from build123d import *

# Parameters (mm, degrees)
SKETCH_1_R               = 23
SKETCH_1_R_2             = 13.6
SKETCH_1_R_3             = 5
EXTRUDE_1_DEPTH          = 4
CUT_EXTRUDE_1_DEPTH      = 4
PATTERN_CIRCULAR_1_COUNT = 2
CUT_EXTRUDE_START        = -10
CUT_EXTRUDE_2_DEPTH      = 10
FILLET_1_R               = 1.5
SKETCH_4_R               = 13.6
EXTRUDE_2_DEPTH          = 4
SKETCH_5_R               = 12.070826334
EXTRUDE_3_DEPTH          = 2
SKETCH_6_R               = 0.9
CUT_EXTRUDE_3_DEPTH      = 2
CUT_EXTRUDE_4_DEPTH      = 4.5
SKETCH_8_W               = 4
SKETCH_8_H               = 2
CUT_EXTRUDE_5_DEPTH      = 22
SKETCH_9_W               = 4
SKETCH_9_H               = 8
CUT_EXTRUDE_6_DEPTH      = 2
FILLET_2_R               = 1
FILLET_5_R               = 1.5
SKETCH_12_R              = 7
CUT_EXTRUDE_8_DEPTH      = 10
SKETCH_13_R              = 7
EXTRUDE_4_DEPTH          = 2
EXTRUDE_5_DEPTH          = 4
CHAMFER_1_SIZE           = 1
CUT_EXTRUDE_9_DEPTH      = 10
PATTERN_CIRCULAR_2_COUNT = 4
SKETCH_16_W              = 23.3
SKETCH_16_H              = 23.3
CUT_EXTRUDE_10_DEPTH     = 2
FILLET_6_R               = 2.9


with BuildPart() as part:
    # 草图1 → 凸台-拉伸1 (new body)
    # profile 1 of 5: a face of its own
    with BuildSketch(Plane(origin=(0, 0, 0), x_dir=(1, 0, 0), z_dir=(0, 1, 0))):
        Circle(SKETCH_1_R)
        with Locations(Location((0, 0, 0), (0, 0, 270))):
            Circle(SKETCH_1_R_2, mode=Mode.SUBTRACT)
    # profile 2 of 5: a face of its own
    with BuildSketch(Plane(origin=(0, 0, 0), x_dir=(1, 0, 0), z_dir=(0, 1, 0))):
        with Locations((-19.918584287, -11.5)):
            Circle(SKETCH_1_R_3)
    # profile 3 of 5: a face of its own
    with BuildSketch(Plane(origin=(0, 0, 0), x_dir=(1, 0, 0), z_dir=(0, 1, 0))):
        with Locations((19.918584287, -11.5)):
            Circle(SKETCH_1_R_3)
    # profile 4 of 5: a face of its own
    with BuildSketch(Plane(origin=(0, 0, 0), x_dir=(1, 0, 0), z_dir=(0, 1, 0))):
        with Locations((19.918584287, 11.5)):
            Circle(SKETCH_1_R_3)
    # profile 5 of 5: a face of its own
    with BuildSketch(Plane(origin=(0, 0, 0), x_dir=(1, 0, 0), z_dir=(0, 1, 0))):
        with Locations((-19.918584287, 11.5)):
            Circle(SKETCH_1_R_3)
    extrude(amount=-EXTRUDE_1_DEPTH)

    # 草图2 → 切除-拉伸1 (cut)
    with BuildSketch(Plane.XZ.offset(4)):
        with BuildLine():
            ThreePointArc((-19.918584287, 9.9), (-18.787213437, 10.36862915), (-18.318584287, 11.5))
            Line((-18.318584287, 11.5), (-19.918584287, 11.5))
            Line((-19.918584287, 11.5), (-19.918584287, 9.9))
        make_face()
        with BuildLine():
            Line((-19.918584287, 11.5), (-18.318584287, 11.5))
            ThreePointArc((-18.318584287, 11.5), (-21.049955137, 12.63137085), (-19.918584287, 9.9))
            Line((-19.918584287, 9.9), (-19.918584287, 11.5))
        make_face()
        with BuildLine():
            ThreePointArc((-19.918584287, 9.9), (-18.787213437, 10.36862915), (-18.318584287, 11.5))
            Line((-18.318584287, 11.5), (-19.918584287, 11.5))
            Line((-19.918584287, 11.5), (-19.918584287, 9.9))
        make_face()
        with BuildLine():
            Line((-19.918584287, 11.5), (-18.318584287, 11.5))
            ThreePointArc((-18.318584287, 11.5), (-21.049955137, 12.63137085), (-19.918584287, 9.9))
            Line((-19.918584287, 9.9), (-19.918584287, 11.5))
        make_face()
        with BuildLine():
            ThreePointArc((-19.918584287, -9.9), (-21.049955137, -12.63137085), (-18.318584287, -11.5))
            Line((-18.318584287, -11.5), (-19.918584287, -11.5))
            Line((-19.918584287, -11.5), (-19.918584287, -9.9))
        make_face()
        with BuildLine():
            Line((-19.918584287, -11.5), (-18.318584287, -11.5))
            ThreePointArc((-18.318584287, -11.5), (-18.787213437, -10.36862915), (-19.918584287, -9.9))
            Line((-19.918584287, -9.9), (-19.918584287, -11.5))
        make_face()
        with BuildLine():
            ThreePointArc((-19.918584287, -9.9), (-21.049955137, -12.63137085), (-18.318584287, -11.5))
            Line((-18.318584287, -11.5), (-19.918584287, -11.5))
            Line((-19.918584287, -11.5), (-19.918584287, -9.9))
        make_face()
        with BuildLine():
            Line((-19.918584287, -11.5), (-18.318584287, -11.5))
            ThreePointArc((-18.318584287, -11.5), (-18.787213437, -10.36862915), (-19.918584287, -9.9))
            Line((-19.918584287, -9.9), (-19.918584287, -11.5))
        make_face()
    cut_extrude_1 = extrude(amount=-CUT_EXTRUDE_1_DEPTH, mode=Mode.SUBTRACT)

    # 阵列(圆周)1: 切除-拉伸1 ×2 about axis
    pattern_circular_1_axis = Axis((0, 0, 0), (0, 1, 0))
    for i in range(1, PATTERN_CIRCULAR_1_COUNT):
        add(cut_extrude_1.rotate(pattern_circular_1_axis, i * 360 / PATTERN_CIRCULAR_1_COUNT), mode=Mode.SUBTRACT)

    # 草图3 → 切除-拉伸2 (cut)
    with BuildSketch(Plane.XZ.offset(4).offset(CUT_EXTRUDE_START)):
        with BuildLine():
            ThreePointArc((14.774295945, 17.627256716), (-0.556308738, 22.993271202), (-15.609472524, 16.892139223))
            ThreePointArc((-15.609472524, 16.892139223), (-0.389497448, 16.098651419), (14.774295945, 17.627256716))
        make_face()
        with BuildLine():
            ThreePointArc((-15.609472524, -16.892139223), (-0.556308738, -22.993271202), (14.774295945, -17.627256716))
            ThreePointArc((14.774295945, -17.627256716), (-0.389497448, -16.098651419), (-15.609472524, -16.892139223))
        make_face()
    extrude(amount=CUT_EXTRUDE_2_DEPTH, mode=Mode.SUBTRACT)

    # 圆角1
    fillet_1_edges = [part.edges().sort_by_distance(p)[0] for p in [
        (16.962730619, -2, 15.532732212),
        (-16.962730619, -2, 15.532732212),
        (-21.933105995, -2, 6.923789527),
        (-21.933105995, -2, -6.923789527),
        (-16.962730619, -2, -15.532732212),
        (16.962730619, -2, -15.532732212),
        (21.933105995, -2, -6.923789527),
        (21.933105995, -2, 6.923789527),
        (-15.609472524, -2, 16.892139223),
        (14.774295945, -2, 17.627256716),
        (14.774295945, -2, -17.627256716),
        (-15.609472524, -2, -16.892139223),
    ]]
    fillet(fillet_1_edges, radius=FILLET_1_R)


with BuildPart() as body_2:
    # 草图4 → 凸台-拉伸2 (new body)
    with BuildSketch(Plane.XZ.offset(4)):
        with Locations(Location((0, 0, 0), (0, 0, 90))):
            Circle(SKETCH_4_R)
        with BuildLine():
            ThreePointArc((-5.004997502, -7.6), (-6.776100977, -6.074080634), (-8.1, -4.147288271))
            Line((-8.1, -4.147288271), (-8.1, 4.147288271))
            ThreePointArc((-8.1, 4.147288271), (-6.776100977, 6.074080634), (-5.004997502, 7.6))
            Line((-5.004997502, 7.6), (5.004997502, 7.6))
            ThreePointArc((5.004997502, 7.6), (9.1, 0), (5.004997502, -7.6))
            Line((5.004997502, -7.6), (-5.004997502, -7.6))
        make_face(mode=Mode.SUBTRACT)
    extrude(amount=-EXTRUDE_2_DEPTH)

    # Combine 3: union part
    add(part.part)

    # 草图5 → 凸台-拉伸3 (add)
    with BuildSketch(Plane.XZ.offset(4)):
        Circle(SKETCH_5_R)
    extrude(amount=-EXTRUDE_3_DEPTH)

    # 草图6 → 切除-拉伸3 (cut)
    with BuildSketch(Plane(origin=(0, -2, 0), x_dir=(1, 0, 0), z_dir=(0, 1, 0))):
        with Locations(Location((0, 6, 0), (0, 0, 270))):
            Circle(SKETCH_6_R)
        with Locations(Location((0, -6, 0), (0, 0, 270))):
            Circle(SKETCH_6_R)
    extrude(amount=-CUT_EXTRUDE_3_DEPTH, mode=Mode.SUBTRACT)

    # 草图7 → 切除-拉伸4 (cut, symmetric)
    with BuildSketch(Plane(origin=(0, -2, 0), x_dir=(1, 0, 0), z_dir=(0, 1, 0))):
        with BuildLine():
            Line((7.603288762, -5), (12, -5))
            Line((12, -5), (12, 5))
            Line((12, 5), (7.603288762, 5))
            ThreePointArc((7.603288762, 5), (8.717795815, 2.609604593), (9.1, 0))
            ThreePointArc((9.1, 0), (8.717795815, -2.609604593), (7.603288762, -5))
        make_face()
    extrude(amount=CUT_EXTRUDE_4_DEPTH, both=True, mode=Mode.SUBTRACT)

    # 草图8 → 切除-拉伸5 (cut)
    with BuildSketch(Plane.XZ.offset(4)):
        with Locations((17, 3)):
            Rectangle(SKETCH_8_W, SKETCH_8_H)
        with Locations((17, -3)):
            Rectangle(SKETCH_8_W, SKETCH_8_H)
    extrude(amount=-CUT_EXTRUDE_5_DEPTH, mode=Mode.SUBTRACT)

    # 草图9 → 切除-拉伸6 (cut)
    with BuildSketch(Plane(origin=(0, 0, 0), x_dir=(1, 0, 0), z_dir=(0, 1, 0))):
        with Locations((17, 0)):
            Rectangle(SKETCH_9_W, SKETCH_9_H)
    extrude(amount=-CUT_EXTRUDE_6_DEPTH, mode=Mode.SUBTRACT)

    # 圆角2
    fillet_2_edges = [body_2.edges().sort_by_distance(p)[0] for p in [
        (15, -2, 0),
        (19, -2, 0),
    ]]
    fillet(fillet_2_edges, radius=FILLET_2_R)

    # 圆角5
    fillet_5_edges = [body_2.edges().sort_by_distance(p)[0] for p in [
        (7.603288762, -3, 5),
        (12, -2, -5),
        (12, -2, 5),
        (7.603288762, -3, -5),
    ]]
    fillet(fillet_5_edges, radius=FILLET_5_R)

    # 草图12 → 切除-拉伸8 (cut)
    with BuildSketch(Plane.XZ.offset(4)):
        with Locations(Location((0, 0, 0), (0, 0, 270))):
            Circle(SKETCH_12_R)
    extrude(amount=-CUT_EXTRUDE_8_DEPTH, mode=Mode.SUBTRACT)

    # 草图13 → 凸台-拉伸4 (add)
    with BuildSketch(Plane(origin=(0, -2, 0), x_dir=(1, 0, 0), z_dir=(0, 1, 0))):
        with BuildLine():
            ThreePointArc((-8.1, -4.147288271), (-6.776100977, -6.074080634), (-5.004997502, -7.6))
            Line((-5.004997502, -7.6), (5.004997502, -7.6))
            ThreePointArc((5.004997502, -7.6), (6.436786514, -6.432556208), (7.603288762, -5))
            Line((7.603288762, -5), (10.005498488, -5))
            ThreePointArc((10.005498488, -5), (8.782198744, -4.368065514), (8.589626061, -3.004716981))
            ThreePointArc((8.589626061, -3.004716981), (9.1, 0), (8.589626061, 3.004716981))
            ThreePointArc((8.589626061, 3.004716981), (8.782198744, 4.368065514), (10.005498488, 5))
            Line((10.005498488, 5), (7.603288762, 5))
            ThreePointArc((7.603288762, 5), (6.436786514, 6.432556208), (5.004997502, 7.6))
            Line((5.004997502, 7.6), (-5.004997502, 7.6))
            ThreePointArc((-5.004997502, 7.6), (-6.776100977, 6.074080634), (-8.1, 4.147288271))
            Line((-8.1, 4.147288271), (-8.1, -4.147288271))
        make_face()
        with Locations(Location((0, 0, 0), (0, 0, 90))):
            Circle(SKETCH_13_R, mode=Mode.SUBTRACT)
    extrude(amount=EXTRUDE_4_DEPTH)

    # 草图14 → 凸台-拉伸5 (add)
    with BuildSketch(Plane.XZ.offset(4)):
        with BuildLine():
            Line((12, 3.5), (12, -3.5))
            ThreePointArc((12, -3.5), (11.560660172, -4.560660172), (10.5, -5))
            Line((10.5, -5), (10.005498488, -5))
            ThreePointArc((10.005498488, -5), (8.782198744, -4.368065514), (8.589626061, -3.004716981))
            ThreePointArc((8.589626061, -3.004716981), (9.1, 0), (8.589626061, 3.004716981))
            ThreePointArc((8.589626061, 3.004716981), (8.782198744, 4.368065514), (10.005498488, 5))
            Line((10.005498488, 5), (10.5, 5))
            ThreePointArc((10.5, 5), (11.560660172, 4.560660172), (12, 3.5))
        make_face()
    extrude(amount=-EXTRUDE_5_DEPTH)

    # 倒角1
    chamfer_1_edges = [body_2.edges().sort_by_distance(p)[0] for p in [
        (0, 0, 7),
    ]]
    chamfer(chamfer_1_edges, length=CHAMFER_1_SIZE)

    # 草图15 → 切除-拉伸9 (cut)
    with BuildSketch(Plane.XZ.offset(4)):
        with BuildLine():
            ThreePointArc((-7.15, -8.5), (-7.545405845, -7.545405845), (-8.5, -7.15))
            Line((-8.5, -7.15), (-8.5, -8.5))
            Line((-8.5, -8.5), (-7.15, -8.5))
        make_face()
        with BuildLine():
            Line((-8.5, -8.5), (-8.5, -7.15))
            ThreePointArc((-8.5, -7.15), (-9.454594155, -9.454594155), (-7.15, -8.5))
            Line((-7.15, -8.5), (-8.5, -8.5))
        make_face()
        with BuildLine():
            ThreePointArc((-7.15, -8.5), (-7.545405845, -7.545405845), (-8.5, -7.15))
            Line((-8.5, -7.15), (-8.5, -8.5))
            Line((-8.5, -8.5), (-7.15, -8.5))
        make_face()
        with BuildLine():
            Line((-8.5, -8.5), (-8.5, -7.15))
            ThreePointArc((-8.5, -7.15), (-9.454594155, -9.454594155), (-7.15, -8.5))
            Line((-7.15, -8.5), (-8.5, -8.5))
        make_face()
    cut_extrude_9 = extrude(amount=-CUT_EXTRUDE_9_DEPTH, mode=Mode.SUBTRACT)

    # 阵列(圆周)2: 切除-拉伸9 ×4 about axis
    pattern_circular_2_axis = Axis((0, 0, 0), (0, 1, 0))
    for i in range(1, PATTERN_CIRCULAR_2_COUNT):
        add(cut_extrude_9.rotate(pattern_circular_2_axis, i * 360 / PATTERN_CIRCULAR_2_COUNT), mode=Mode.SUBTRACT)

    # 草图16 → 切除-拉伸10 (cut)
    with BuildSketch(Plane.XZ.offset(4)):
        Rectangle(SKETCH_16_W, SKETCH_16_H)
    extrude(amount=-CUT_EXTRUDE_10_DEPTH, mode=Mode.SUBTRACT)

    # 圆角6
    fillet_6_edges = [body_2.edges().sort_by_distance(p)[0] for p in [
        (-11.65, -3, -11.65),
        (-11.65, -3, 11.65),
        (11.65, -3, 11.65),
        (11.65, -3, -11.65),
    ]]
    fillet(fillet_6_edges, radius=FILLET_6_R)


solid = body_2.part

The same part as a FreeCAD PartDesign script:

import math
import FreeCAD as App
import Part
import Sketcher
Q = App.Units.Quantity


def edges_at(feature, points):
    """Names of the edges that pass closest to the given points."""
    edges = feature.Shape.Edges
    near = lambda p: min(range(len(edges)), key=lambda i: edges[i].distToShape(Part.Vertex(*p))[0])
    return sorted({f"Edge{near(p) + 1}" for p in points})

doc = App.newDocument("Part")
body = doc.addObject("PartDesign::Body", "Body")

# Sketch on XZ plane
sketch1 = doc.addObject("Sketcher::SketchObject", "Sketch")
body.addObject(sketch1)
sketch1.AttachmentSupport = (doc.XZ_Plane, [""])
sketch1.MapMode = "FlatFace"
sketch1.addGeometry(Part.ArcOfCircle(Part.Circle(App.Vector(0, 0, 0), App.Vector(0, 0, 1), 23), math.radians(-18), math.radians(18)), False)
sketch1.addGeometry(Part.ArcOfCircle(Part.Circle(App.Vector(20, -12, 0), App.Vector(0, 0, 1), 5), math.radians(-126), math.radians(66)), False)
sketch1.addGeometry(Part.ArcOfCircle(Part.Circle(App.Vector(0, 0, 0), App.Vector(0, 0, 1), 23), math.radians(-138), math.radians(-42)), False)
sketch1.addGeometry(Part.ArcOfCircle(Part.Circle(App.Vector(-20, -12, 0), App.Vector(0, 0, 1), 5), math.radians(114), math.radians(306)), False)
sketch1.addGeometry(Part.ArcOfCircle(Part.Circle(App.Vector(0, 0, 0), App.Vector(0, 0, 1), 23), math.radians(162), math.radians(198)), False)
sketch1.addGeometry(Part.ArcOfCircle(Part.Circle(App.Vector(-20, 12, 0), App.Vector(0, 0, 1), 5), math.radians(54), math.radians(246)), False)
sketch1.addGeometry(Part.ArcOfCircle(Part.Circle(App.Vector(0, 0, 0), App.Vector(0, 0, 1), 23), math.radians(42), math.radians(138)), False)
sketch1.addGeometry(Part.ArcOfCircle(Part.Circle(App.Vector(20, 12, 0), App.Vector(0, 0, 1), 5), math.radians(-66), math.radians(126)), False)
sketch1.addGeometry(Part.Circle(App.Vector(0, 0, 0), App.Vector(0, 0, 1), 14), False)
sketch1.addConstraint(Sketcher.Constraint("Coincident", 0, 1, 1, 2))
sketch1.addConstraint(Sketcher.Constraint("Coincident", 1, 1, 2, 2))
sketch1.addConstraint(Sketcher.Constraint("Coincident", 2, 1, 3, 2))
sketch1.addConstraint(Sketcher.Constraint("Coincident", 3, 1, 4, 2))
sketch1.addConstraint(Sketcher.Constraint("Coincident", 4, 1, 5, 2))
sketch1.addConstraint(Sketcher.Constraint("Coincident", 5, 1, 6, 2))
sketch1.addConstraint(Sketcher.Constraint("Coincident", 6, 1, 7, 2))
sketch1.addConstraint(Sketcher.Constraint("Coincident", 7, 1, 0, 2))
sketch1.addConstraint(Sketcher.Constraint("Coincident", 0, 3, -1, 1))
sketch1.addConstraint(Sketcher.Constraint("Coincident", 2, 3, -1, 1))
sketch1.addConstraint(Sketcher.Constraint("Coincident", 4, 3, -1, 1))
sketch1.addConstraint(Sketcher.Constraint("Coincident", 6, 3, -1, 1))
sketch1.addConstraint(Sketcher.Constraint("Coincident", 8, 3, -1, 1))
sketch1.addConstraint(Sketcher.Constraint("Equal", 0, 2))
sketch1.addConstraint(Sketcher.Constraint("Equal", 1, 3))
sketch1.addConstraint(Sketcher.Constraint("Equal", 2, 4))
sketch1.addConstraint(Sketcher.Constraint("Equal", 3, 5))
sketch1.addConstraint(Sketcher.Constraint("Equal", 4, 6))
sketch1.addConstraint(Sketcher.Constraint("Equal", 5, 7))
sketch1.addConstraint(Sketcher.Constraint("Symmetric", 1, 3, 5, 3, -1, 1))
sketch1.addConstraint(Sketcher.Constraint("Symmetric", 3, 3, 7, 3, -1, 1))
sketch1.addConstraint(Sketcher.Constraint("Symmetric", 1, 3, 3, 3, -2))
sketch1.addConstraint(Sketcher.Constraint("Radius", 0, Q("23 mm")))
sketch1.addConstraint(Sketcher.Constraint("Radius", 1, Q("5 mm")))
sketch1.addConstraint(Sketcher.Constraint("Diameter", 8, Q("27.2 mm")))
sketch1.addConstraint(Sketcher.Constraint("DistanceY", 3, 3, 5, 3, Q("23 mm")))
sketch1.addConstraint(Sketcher.Constraint("DistanceY", 0, 1, -1, 1, Q("6.92379 mm")))
pad1 = doc.addObject("PartDesign::Pad", "Pad")
body.addObject(pad1)
pad1.Profile = sketch1
pad1.Length = 4

# Sketch on XZ plane
sketch2 = doc.addObject("Sketcher::SketchObject", "Sketch001")
body.addObject(sketch2)
sketch2.AttachmentSupport = (doc.XZ_Plane, [""])
sketch2.MapMode = "FlatFace"
sketch2.AttachmentOffset = App.Placement(App.Vector(0, 0, 4), App.Rotation())
sketch2.addGeometry(Part.ArcOfCircle(Part.Circle(App.Vector(-19.9, 11.5, 0), App.Vector(0, 0, 1), 1.6), math.radians(-90), math.radians(0)), False)
sketch2.addGeometry(Part.ArcOfCircle(Part.Circle(App.Vector(-19.9, 11.5, 0), App.Vector(0, 0, 1), 1.6), math.radians(0), math.radians(270)), False)
sketch2.addGeometry(Part.ArcOfCircle(Part.Circle(App.Vector(-19.9, -11.5, 0), App.Vector(0, 0, 1), 1.6), math.radians(90), math.radians(360)), False)
sketch2.addGeometry(Part.ArcOfCircle(Part.Circle(App.Vector(-19.9, -11.5, 0), App.Vector(0, 0, 1), 1.6), math.radians(0), math.radians(90)), False)
sketch2.addConstraint(Sketcher.Constraint("Tangent", 0, 1, 1, 2))
sketch2.addConstraint(Sketcher.Constraint("Coincident", 1, 1, 0, 2))
sketch2.addConstraint(Sketcher.Constraint("Tangent", 2, 1, 3, 2))
sketch2.addConstraint(Sketcher.Constraint("Coincident", 3, 1, 2, 2))
sketch2.addConstraint(Sketcher.Constraint("Equal", 1, 2))
sketch2.addConstraint(Sketcher.Constraint("Symmetric", 0, 3, 2, 3, -1))
sketch2.addConstraint(Sketcher.Constraint("Horizontal", 0, 3, 1, 1))
sketch2.addConstraint(Sketcher.Constraint("Horizontal", 2, 3, 3, 1))
sketch2.addConstraint(Sketcher.Constraint("Vertical", 3, 3, 0, 1))
sketch2.addConstraint(Sketcher.Constraint("Vertical", 0, 1, 2, 1))
sketch2.addConstraint(Sketcher.Constraint("Radius", 0, Q("1.6 mm")))
sketch2.addConstraint(Sketcher.Constraint("DistanceY", 2, 3, 0, 3, Q("23 mm")))
sketch2.addConstraint(Sketcher.Constraint("DistanceX", 0, 3, -1, 1, Q("19.918584 mm")))
pocket1 = doc.addObject("PartDesign::Pocket", "Pocket")
body.addObject(pocket1)
pocket1.Profile = sketch2
pocket1.Length = 4
doc.recompute()

polarpattern = doc.addObject("PartDesign::PolarPattern", "PolarPattern")
body.addObject(polarpattern)
polarpattern.Originals = [pocket1]
polarpattern.Axis = (doc.Y_Axis, [""])
polarpattern.Angle = 360
polarpattern.Occurrences = 2
body.Tip = polarpattern

# Sketch on XZ plane
sketch3 = doc.addObject("Sketcher::SketchObject", "Sketch002")
body.addObject(sketch3)
sketch3.AttachmentSupport = (doc.XZ_Plane, [""])
sketch3.MapMode = "FlatFace"
sketch3.AttachmentOffset = App.Placement(App.Vector(0, 0, -6), App.Rotation())
sketch3.addGeometry(Part.ArcOfCircle(Part.Circle(App.Vector(0, 0, 0), App.Vector(0, 0, 1), 23), math.radians(50), math.radians(133)), False)
sketch3.addGeometry(Part.ArcOfCircle(Part.Circle(App.Vector(-3, 116, 0), App.Vector(0, 0, 1), 100), math.radians(-97.35), math.radians(-79.87)), False)
sketch3.addGeometry(Part.ArcOfCircle(Part.Circle(App.Vector(0, 0, 0), App.Vector(0, 0, 1), 23), math.radians(-133), math.radians(-50)), False)
sketch3.addGeometry(Part.ArcOfCircle(Part.Circle(App.Vector(-3, -116, 0), App.Vector(0, 0, 1), 100), math.radians(79.87), math.radians(97.35)), False)
sketch3.addConstraint(Sketcher.Constraint("Coincident", 0, 1, 1, 2))
sketch3.addConstraint(Sketcher.Constraint("Coincident", 1, 1, 0, 2))
sketch3.addConstraint(Sketcher.Constraint("Coincident", 2, 1, 3, 2))
sketch3.addConstraint(Sketcher.Constraint("Coincident", 3, 1, 2, 2))
sketch3.addConstraint(Sketcher.Constraint("Coincident", 0, 3, -1, 1))
sketch3.addConstraint(Sketcher.Constraint("Coincident", 2, 3, -1, 1))
sketch3.addConstraint(Sketcher.Constraint("Equal", 0, 2))
sketch3.addConstraint(Sketcher.Constraint("Equal", 1, 3))
sketch3.addConstraint(Sketcher.Constraint("Symmetric", 1, 3, 3, 3, -1))
sketch3.addConstraint(Sketcher.Constraint("Radius", 0, Q("23 mm")))
sketch3.addConstraint(Sketcher.Constraint("Radius", 1, Q("100 mm")))
sketch3.addConstraint(Sketcher.Constraint("DistanceX", 1, 3, -1, 1, Q("2.808231 mm")))
sketch3.addConstraint(Sketcher.Constraint("DistanceY", -1, 1, 1, 1, Q("16.892139 mm")))
pocket2 = doc.addObject("PartDesign::Pocket", "Pocket001")
body.addObject(pocket2)
pocket2.Profile = sketch3
pocket2.Length = 10
pocket2.Reversed = True
doc.recompute()

fillet = doc.addObject("PartDesign::Fillet", "Fillet")
body.addObject(fillet)
fillet.Base = (pocket2, edges_at(pocket2, [
    (16.963, -2, 15.533),
    (-16.963, -2, 15.533),
    (-21.933, -2, 6.924),
    (-21.933, -2, -6.924),
    (-16.963, -2, -15.533),
    (16.963, -2, -15.533),
    (21.933, -2, -6.924),
    (21.933, -2, 6.924),
    (-15.609, -2, 16.892),
    (14.774, -2, 17.627),
    (14.774, -2, -17.627),
    (-15.609, -2, -16.892),
]))
fillet.Radius = 1.5
body2 = doc.addObject("PartDesign::Body", "Body001")

# Sketch on XZ plane
sketch4 = doc.addObject("Sketcher::SketchObject", "Sketch003")
body2.addObject(sketch4)
sketch4.AttachmentSupport = (doc.getObject("XZ_Plane001"), [""])
sketch4.MapMode = "FlatFace"
sketch4.AttachmentOffset = App.Placement(App.Vector(0, 0, 4), App.Rotation())
sketch4.addGeometry(Part.Circle(App.Vector(0, 0, 0), App.Vector(0, 0, 1), 13.6), False)
sketch4.addGeometry(Part.LineSegment(App.Vector(5, -7.6, 0), App.Vector(-5, -7.6, 0)), False)
sketch4.addGeometry(Part.ArcOfCircle(Part.Circle(App.Vector(0, 0, 0), App.Vector(0, 0, 1), 9.1), math.radians(-153), math.radians(-123)), False)
sketch4.addGeometry(Part.LineSegment(App.Vector(-8.1, -4.1, 0), App.Vector(-8.1, 4.1, 0)), False)
sketch4.addGeometry(Part.ArcOfCircle(Part.Circle(App.Vector(0, 0, 0), App.Vector(0, 0, 1), 9.1), math.radians(123), math.radians(153)), False)
sketch4.addGeometry(Part.LineSegment(App.Vector(-5, 7.6, 0), App.Vector(5, 7.6, 0)), False)
sketch4.addGeometry(Part.ArcOfCircle(Part.Circle(App.Vector(0, 0, 0), App.Vector(0, 0, 1), 9.1), math.radians(-57), math.radians(57)), False)
sketch4.addConstraint(Sketcher.Constraint("Coincident", 1, 2, 2, 2))
sketch4.addConstraint(Sketcher.Constraint("Coincident", 2, 1, 3, 1))
sketch4.addConstraint(Sketcher.Constraint("Coincident", 3, 2, 4, 2))
sketch4.addConstraint(Sketcher.Constraint("Coincident", 4, 1, 5, 1))
sketch4.addConstraint(Sketcher.Constraint("Coincident", 5, 2, 6, 2))
sketch4.addConstraint(Sketcher.Constraint("Coincident", 6, 1, 1, 1))
sketch4.addConstraint(Sketcher.Constraint("Horizontal", 1))
sketch4.addConstraint(Sketcher.Constraint("Vertical", 3))
sketch4.addConstraint(Sketcher.Constraint("Horizontal", 5))
sketch4.addConstraint(Sketcher.Constraint("Coincident", 0, 3, -1, 1))
sketch4.addConstraint(Sketcher.Constraint("Coincident", 2, 3, -1, 1))
sketch4.addConstraint(Sketcher.Constraint("Coincident", 4, 3, -1, 1))
sketch4.addConstraint(Sketcher.Constraint("Coincident", 6, 3, -1, 1))
sketch4.addConstraint(Sketcher.Constraint("Equal", 2, 4))
sketch4.addConstraint(Sketcher.Constraint("Equal", 4, 6))
sketch4.addConstraint(Sketcher.Constraint("Vertical", 1, 2, 4, 1))
sketch4.addConstraint(Sketcher.Constraint("Diameter", 0, Q("27.2 mm")))
sketch4.addConstraint(Sketcher.Constraint("Radius", 2, Q("9.1 mm")))
sketch4.addConstraint(Sketcher.Constraint("DistanceY", 1, 2, -1, 1, Q("7.6 mm")))
sketch4.addConstraint(Sketcher.Constraint("DistanceX", 2, 1, -1, 1, Q("8.1 mm")))
pad2 = doc.addObject("PartDesign::Pad", "Pad001")
body2.addObject(pad2)
pad2.Profile = sketch4
pad2.Length = 4
pad2.Reversed = True
doc.recompute()

boolean = doc.addObject("PartDesign::Boolean", "Boolean")
body2.addObject(boolean)
boolean.Type = "Fuse"
boolean.addObjects([body])

# Sketch on XZ plane
sketch5 = doc.addObject("Sketcher::SketchObject", "Sketch004")
body2.addObject(sketch5)
sketch5.AttachmentSupport = (doc.getObject("XZ_Plane001"), [""])
sketch5.MapMode = "FlatFace"
sketch5.AttachmentOffset = App.Placement(App.Vector(0, 0, 4), App.Rotation())
sketch5.addGeometry(Part.Circle(App.Vector(0, 0, 0), App.Vector(0, 0, 1), 12), False)
sketch5.addConstraint(Sketcher.Constraint("Coincident", 0, 3, -1, 1))
sketch5.addConstraint(Sketcher.Constraint("Diameter", 0, Q("24.141653 mm")))
pad3 = doc.addObject("PartDesign::Pad", "Pad002")
body2.addObject(pad3)
pad3.Profile = sketch5
pad3.Length = 2
pad3.Reversed = True

# Sketch on XZ plane
sketch6 = doc.addObject("Sketcher::SketchObject", "Sketch005")
body2.addObject(sketch6)
sketch6.AttachmentSupport = (doc.getObject("XZ_Plane001"), [""])
sketch6.MapMode = "FlatFace"
sketch6.AttachmentOffset = App.Placement(App.Vector(0, 0, 2), App.Rotation())
sketch6.addGeometry(Part.Circle(App.Vector(0, -6, 0), App.Vector(0, 0, 1), 0.9), False)
sketch6.addGeometry(Part.Circle(App.Vector(0, 6, 0), App.Vector(0, 0, 1), 0.9), False)
sketch6.addConstraint(Sketcher.Constraint("Equal", 0, 1))
sketch6.addConstraint(Sketcher.Constraint("Symmetric", 0, 3, 1, 3, -1, 1))
sketch6.addConstraint(Sketcher.Constraint("PointOnObject", 0, 3, -2))
sketch6.addConstraint(Sketcher.Constraint("Diameter", 0, Q("1.8 mm")))
sketch6.addConstraint(Sketcher.Constraint("DistanceY", 0, 3, -1, 1, Q("6 mm")))
pocket3 = doc.addObject("PartDesign::Pocket", "Pocket002")
body2.addObject(pocket3)
pocket3.Profile = sketch6
pocket3.Length = 2
pocket3.Reversed = True

# Sketch on XZ plane
sketch7 = doc.addObject("Sketcher::SketchObject", "Sketch006")
body2.addObject(sketch7)
sketch7.AttachmentSupport = (doc.getObject("XZ_Plane001"), [""])
sketch7.MapMode = "FlatFace"
sketch7.AttachmentOffset = App.Placement(App.Vector(0, 0, 2), App.Rotation())
sketch7.addGeometry(Part.LineSegment(App.Vector(7.6, 5, 0), App.Vector(12, 5, 0)), False)
sketch7.addGeometry(Part.LineSegment(App.Vector(12, 5, 0), App.Vector(12, -5, 0)), False)
sketch7.addGeometry(Part.LineSegment(App.Vector(12, -5, 0), App.Vector(7.6, -5, 0)), False)
sketch7.addGeometry(Part.ArcOfCircle(Part.Circle(App.Vector(0, 0, 0), App.Vector(0, 0, 1), 9.1), math.radians(-33), math.radians(0)), False)
sketch7.addGeometry(Part.ArcOfCircle(Part.Circle(App.Vector(0, 0, 0), App.Vector(0, 0, 1), 9.1), math.radians(0), math.radians(33)), False)
sketch7.addConstraint(Sketcher.Constraint("Coincident", 0, 2, 1, 1))
sketch7.addConstraint(Sketcher.Constraint("Coincident", 1, 2, 2, 1))
sketch7.addConstraint(Sketcher.Constraint("Coincident", 2, 2, 3, 1))
sketch7.addConstraint(Sketcher.Constraint("Tangent", 3, 2, 4, 1))
sketch7.addConstraint(Sketcher.Constraint("Coincident", 4, 2, 0, 1))
sketch7.addConstraint(Sketcher.Constraint("Horizontal", 0))
sketch7.addConstraint(Sketcher.Constraint("Vertical", 1))
sketch7.addConstraint(Sketcher.Constraint("Horizontal", 2))
sketch7.addConstraint(Sketcher.Constraint("Coincident", 3, 3, -1, 1))
sketch7.addConstraint(Sketcher.Constraint("Equal", 3, 4))
sketch7.addConstraint(Sketcher.Constraint("PointOnObject", 3, 2, -1))
sketch7.addConstraint(Sketcher.Constraint("Vertical", 2, 2, 4, 2))
sketch7.addConstraint(Sketcher.Constraint("Radius", 3, Q("9.1 mm")))
sketch7.addConstraint(Sketcher.Constraint("DistanceY", 1, 2, 1, 1, Q("10 mm")))
sketch7.addConstraint(Sketcher.Constraint("DistanceX", -1, 1, 0, 2, Q("12 mm")))
pocket4 = doc.addObject("PartDesign::Pocket", "Pocket003")
body2.addObject(pocket4)
pocket4.Profile = sketch7
pocket4.Length = 9
pocket4.Midplane = True

# Sketch on XZ plane
sketch8 = doc.addObject("Sketcher::SketchObject", "Sketch007")
body2.addObject(sketch8)
sketch8.AttachmentSupport = (doc.getObject("XZ_Plane001"), [""])
sketch8.MapMode = "FlatFace"
sketch8.AttachmentOffset = App.Placement(App.Vector(0, 0, 4), App.Rotation())
sketch8.addGeometry(Part.LineSegment(App.Vector(15, 4, 0), App.Vector(15, 2, 0)), False)
sketch8.addGeometry(Part.LineSegment(App.Vector(15, 2, 0), App.Vector(19, 2, 0)), False)
sketch8.addGeometry(Part.LineSegment(App.Vector(19, 2, 0), App.Vector(19, 4, 0)), False)
sketch8.addGeometry(Part.LineSegment(App.Vector(19, 4, 0), App.Vector(15, 4, 0)), False)
sketch8.addGeometry(Part.LineSegment(App.Vector(15, -2, 0), App.Vector(15, -4, 0)), False)
sketch8.addGeometry(Part.LineSegment(App.Vector(15, -4, 0), App.Vector(19, -4, 0)), False)
sketch8.addGeometry(Part.LineSegment(App.Vector(19, -4, 0), App.Vector(19, -2, 0)), False)
sketch8.addGeometry(Part.LineSegment(App.Vector(19, -2, 0), App.Vector(15, -2, 0)), False)
sketch8.addConstraint(Sketcher.Constraint("Coincident", 0, 2, 1, 1))
sketch8.addConstraint(Sketcher.Constraint("Coincident", 1, 2, 2, 1))
sketch8.addConstraint(Sketcher.Constraint("Coincident", 2, 2, 3, 1))
sketch8.addConstraint(Sketcher.Constraint("Coincident", 3, 2, 0, 1))
sketch8.addConstraint(Sketcher.Constraint("Coincident", 4, 2, 5, 1))
sketch8.addConstraint(Sketcher.Constraint("Coincident", 5, 2, 6, 1))
sketch8.addConstraint(Sketcher.Constraint("Coincident", 6, 2, 7, 1))
sketch8.addConstraint(Sketcher.Constraint("Coincident", 7, 2, 4, 1))
sketch8.addConstraint(Sketcher.Constraint("Vertical", 0))
sketch8.addConstraint(Sketcher.Constraint("Horizontal", 1))
sketch8.addConstraint(Sketcher.Constraint("Vertical", 2))
sketch8.addConstraint(Sketcher.Constraint("Horizontal", 3))
sketch8.addConstraint(Sketcher.Constraint("Vertical", 4))
sketch8.addConstraint(Sketcher.Constraint("Horizontal", 5))
sketch8.addConstraint(Sketcher.Constraint("Vertical", 6))
sketch8.addConstraint(Sketcher.Constraint("Horizontal", 7))
sketch8.addConstraint(Sketcher.Constraint("Symmetric", 3, 2, 4, 2, -1))
sketch8.addConstraint(Sketcher.Constraint("Symmetric", 1, 2, 6, 2, -1))
sketch8.addConstraint(Sketcher.Constraint("DistanceX", 1, 1, 1, 2, Q("4 mm")))
sketch8.addConstraint(Sketcher.Constraint("DistanceY", 0, 2, 0, 1, Q("2 mm")))
sketch8.addConstraint(Sketcher.Constraint("DistanceX", -1, 1, 0, 2, Q("15 mm")))
sketch8.addConstraint(Sketcher.Constraint("DistanceY", -1, 1, 0, 2, Q("2 mm")))
pocket5 = doc.addObject("PartDesign::Pocket", "Pocket004")
body2.addObject(pocket5)
pocket5.Profile = sketch8
pocket5.Length = 22

# Sketch on XZ plane
sketch9 = doc.addObject("Sketcher::SketchObject", "Sketch008")
body2.addObject(sketch9)
sketch9.AttachmentSupport = (doc.getObject("XZ_Plane001"), [""])
sketch9.MapMode = "FlatFace"
sketch9.addGeometry(Part.LineSegment(App.Vector(15, -4, 0), App.Vector(15, 4, 0)), False)
sketch9.addGeometry(Part.LineSegment(App.Vector(15, 4, 0), App.Vector(19, 4, 0)), False)
sketch9.addGeometry(Part.LineSegment(App.Vector(19, 4, 0), App.Vector(19, -4, 0)), False)
sketch9.addGeometry(Part.LineSegment(App.Vector(19, -4, 0), App.Vector(15, -4, 0)), False)
sketch9.addConstraint(Sketcher.Constraint("Coincident", 0, 2, 1, 1))
sketch9.addConstraint(Sketcher.Constraint("Coincident", 1, 2, 2, 1))
sketch9.addConstraint(Sketcher.Constraint("Coincident", 2, 2, 3, 1))
sketch9.addConstraint(Sketcher.Constraint("Coincident", 3, 2, 0, 1))
sketch9.addConstraint(Sketcher.Constraint("Vertical", 0))
sketch9.addConstraint(Sketcher.Constraint("Horizontal", 1))
sketch9.addConstraint(Sketcher.Constraint("Vertical", 2))
sketch9.addConstraint(Sketcher.Constraint("Horizontal", 3))
sketch9.addConstraint(Sketcher.Constraint("DistanceX", 1, 1, 1, 2, Q("4 mm")))
sketch9.addConstraint(Sketcher.Constraint("DistanceY", 0, 1, 0, 2, Q("8 mm")))
sketch9.addConstraint(Sketcher.Constraint("DistanceX", -1, 1, 0, 2, Q("15 mm")))
sketch9.addConstraint(Sketcher.Constraint("DistanceY", -1, 1, 0, 2, Q("4 mm")))
pocket6 = doc.addObject("PartDesign::Pocket", "Pocket005")
body2.addObject(pocket6)
pocket6.Profile = sketch9
pocket6.Length = 2
pocket6.Reversed = True
doc.recompute()

fillet2 = doc.addObject("PartDesign::Fillet", "Fillet001")
body2.addObject(fillet2)
fillet2.Base = (pocket6, edges_at(pocket6, [(15, -2, 0), (19, -2, 0)]))
fillet2.Radius = 1
doc.recompute()

fillet3 = doc.addObject("PartDesign::Fillet", "Fillet002")
body2.addObject(fillet3)
fillet3.Base = (fillet2, edges_at(fillet2, [
    (7.603, -3, 5),
    (12, -2, -5),
    (12, -2, 5),
    (7.603, -3, -5),
]))
fillet3.Radius = 1.5

# Sketch on XZ plane
sketch10 = doc.addObject("Sketcher::SketchObject", "Sketch009")
body2.addObject(sketch10)
sketch10.AttachmentSupport = (doc.getObject("XZ_Plane001"), [""])
sketch10.MapMode = "FlatFace"
sketch10.AttachmentOffset = App.Placement(App.Vector(0, 0, 4), App.Rotation())
sketch10.addGeometry(Part.Circle(App.Vector(0, 0, 0), App.Vector(0, 0, 1), 7), False)
sketch10.addConstraint(Sketcher.Constraint("Coincident", 0, 3, -1, 1))
sketch10.addConstraint(Sketcher.Constraint("Diameter", 0, Q("14 mm")))
pocket7 = doc.addObject("PartDesign::Pocket", "Pocket006")
body2.addObject(pocket7)
pocket7.Profile = sketch10
pocket7.Length = 10

# Sketch on XZ plane
sketch11 = doc.addObject("Sketcher::SketchObject", "Sketch010")
body2.addObject(sketch11)
sketch11.AttachmentSupport = (doc.getObject("XZ_Plane001"), [""])
sketch11.MapMode = "FlatFace"
sketch11.AttachmentOffset = App.Placement(App.Vector(0, 0, 2), App.Rotation())
sketch11.addGeometry(Part.ArcOfCircle(Part.Circle(App.Vector(0, 0, 0), App.Vector(0, 0, 1), 9.1), math.radians(123), math.radians(153)), False)
sketch11.addGeometry(Part.LineSegment(App.Vector(-5, 7.6, 0), App.Vector(5, 7.6, 0)), False)
sketch11.addGeometry(Part.ArcOfCircle(Part.Circle(App.Vector(0, 0, 0), App.Vector(0, 0, 1), 9.1), math.radians(33), math.radians(57)), False)
sketch11.addGeometry(Part.LineSegment(App.Vector(7.6, 5, 0), App.Vector(10, 5, 0)), False)
sketch11.addGeometry(Part.ArcOfCircle(Part.Circle(App.Vector(10, 3.5, 0), App.Vector(0, 0, 1), 1.5), math.radians(90), math.radians(199)), False)
sketch11.addGeometry(Part.ArcOfCircle(Part.Circle(App.Vector(0, 0, 0), App.Vector(0, 0, 1), 9.1), math.radians(-19), math.radians(19)), False)
sketch11.addGeometry(Part.ArcOfCircle(Part.Circle(App.Vector(10, -3.5, 0), App.Vector(0, 0, 1), 1.5), math.radians(161), math.radians(270)), False)
sketch11.addGeometry(Part.LineSegment(App.Vector(10, -5, 0), App.Vector(7.6, -5, 0)), False)
sketch11.addGeometry(Part.ArcOfCircle(Part.Circle(App.Vector(0, 0, 0), App.Vector(0, 0, 1), 9.1), math.radians(-57), math.radians(-33)), False)
sketch11.addGeometry(Part.LineSegment(App.Vector(5, -7.6, 0), App.Vector(-5, -7.6, 0)), False)
sketch11.addGeometry(Part.ArcOfCircle(Part.Circle(App.Vector(0, 0, 0), App.Vector(0, 0, 1), 9.1), math.radians(-153), math.radians(-123)), False)
sketch11.addGeometry(Part.LineSegment(App.Vector(-8.1, -4.1, 0), App.Vector(-8.1, 4.1, 0)), False)
sketch11.addGeometry(Part.Circle(App.Vector(0, 0, 0), App.Vector(0, 0, 1), 7), False)
sketch11.addConstraint(Sketcher.Constraint("Coincident", 0, 1, 1, 1))
sketch11.addConstraint(Sketcher.Constraint("Coincident", 1, 2, 2, 2))
sketch11.addConstraint(Sketcher.Constraint("Coincident", 2, 1, 3, 1))
sketch11.addConstraint(Sketcher.Constraint("Tangent", 3, 2, 4, 1))
sketch11.addConstraint(Sketcher.Constraint("Tangent", 4, 2, 5, 2))
sketch11.addConstraint(Sketcher.Constraint("Tangent", 5, 1, 6, 1))
sketch11.addConstraint(Sketcher.Constraint("Tangent", 6, 2, 7, 1))
sketch11.addConstraint(Sketcher.Constraint("Coincident", 7, 2, 8, 2))
sketch11.addConstraint(Sketcher.Constraint("Coincident", 8, 1, 9, 1))
sketch11.addConstraint(Sketcher.Constraint("Coincident", 9, 2, 10, 2))
sketch11.addConstraint(Sketcher.Constraint("Coincident", 10, 1, 11, 1))
sketch11.addConstraint(Sketcher.Constraint("Coincident", 11, 2, 0, 2))
sketch11.addConstraint(Sketcher.Constraint("Horizontal", 1))
sketch11.addConstraint(Sketcher.Constraint("Horizontal", 3))
sketch11.addConstraint(Sketcher.Constraint("Horizontal", 7))
sketch11.addConstraint(Sketcher.Constraint("Horizontal", 9))
sketch11.addConstraint(Sketcher.Constraint("Vertical", 11))
sketch11.addConstraint(Sketcher.Constraint("Coincident", 0, 3, -1, 1))
sketch11.addConstraint(Sketcher.Constraint("Coincident", 2, 3, -1, 1))
sketch11.addConstraint(Sketcher.Constraint("Coincident", 5, 3, -1, 1))
sketch11.addConstraint(Sketcher.Constraint("Coincident", 8, 3, -1, 1))
sketch11.addConstraint(Sketcher.Constraint("Coincident", 10, 3, -1, 1))
sketch11.addConstraint(Sketcher.Constraint("Coincident", 12, 3, -1, 1))
sketch11.addConstraint(Sketcher.Constraint("Equal", 0, 2))
sketch11.addConstraint(Sketcher.Constraint("Equal", 2, 5))
sketch11.addConstraint(Sketcher.Constraint("Equal", 4, 6))
sketch11.addConstraint(Sketcher.Constraint("Equal", 5, 8))
sketch11.addConstraint(Sketcher.Constraint("Equal", 8, 10))
sketch11.addConstraint(Sketcher.Constraint("Vertical", 4, 3, 6, 3))
sketch11.addConstraint(Sketcher.Constraint("Vertical", 1, 2, 8, 1))
sketch11.addConstraint(Sketcher.Constraint("Diameter", 12, Q("14 mm")))
sketch11.addConstraint(Sketcher.Constraint("Radius", 0, Q("9.1 mm")))
sketch11.addConstraint(Sketcher.Constraint("Radius", 4, Q("1.5 mm")))
sketch11.addConstraint(Sketcher.Constraint("DistanceY", -1, 1, 2, 1, Q("5 mm")))
sketch11.addConstraint(Sketcher.Constraint("DistanceY", -1, 1, 0, 1, Q("7.6 mm")))
sketch11.addConstraint(Sketcher.Constraint("DistanceX", 10, 1, -1, 1, Q("8.1 mm")))
pad4 = doc.addObject("PartDesign::Pad", "Pad003")
body2.addObject(pad4)
pad4.Profile = sketch11
pad4.Length = 2
pad4.Reversed = True

# Sketch on XZ plane
sketch12 = doc.addObject("Sketcher::SketchObject", "Sketch011")
body2.addObject(sketch12)
sketch12.AttachmentSupport = (doc.getObject("XZ_Plane001"), [""])
sketch12.MapMode = "FlatFace"
sketch12.AttachmentOffset = App.Placement(App.Vector(0, 0, 4), App.Rotation())
sketch12.addGeometry(Part.LineSegment(App.Vector(12, -3.5, 0), App.Vector(12, 3.5, 0)), False)
sketch12.addGeometry(Part.ArcOfCircle(Part.Circle(App.Vector(10.5, 3.5, 0), App.Vector(0, 0, 1), 1.5), math.radians(0), math.radians(90)), False)
sketch12.addGeometry(Part.LineSegment(App.Vector(10.5, 5, 0), App.Vector(10.01, 5, 0)), False)
sketch12.addGeometry(Part.ArcOfCircle(Part.Circle(App.Vector(10.01, 3.5, 0), App.Vector(0, 0, 1), 1.5), math.radians(90), math.radians(199)), False)
sketch12.addGeometry(Part.ArcOfCircle(Part.Circle(App.Vector(0, 0, 0), App.Vector(0, 0, 1), 9.1), math.radians(-19), math.radians(19)), False)
sketch12.addGeometry(Part.ArcOfCircle(Part.Circle(App.Vector(10.01, -3.5, 0), App.Vector(0, 0, 1), 1.5), math.radians(161), math.radians(270)), False)
sketch12.addGeometry(Part.LineSegment(App.Vector(10.01, -5, 0), App.Vector(10.5, -5, 0)), False)
sketch12.addGeometry(Part.ArcOfCircle(Part.Circle(App.Vector(10.5, -3.5, 0), App.Vector(0, 0, 1), 1.5), math.radians(-90), math.radians(0)), False)
sketch12.addConstraint(Sketcher.Constraint("Tangent", 0, 2, 1, 1))
sketch12.addConstraint(Sketcher.Constraint("Tangent", 1, 2, 2, 1))
sketch12.addConstraint(Sketcher.Constraint("Tangent", 2, 2, 3, 1))
sketch12.addConstraint(Sketcher.Constraint("Tangent", 3, 2, 4, 2))
sketch12.addConstraint(Sketcher.Constraint("Tangent", 4, 1, 5, 1))
sketch12.addConstraint(Sketcher.Constraint("Tangent", 5, 2, 6, 1))
sketch12.addConstraint(Sketcher.Constraint("Tangent", 6, 2, 7, 1))
sketch12.addConstraint(Sketcher.Constraint("Tangent", 7, 2, 0, 1))
sketch12.addConstraint(Sketcher.Constraint("Vertical", 0))
sketch12.addConstraint(Sketcher.Constraint("Horizontal", 2))
sketch12.addConstraint(Sketcher.Constraint("Horizontal", 6))
sketch12.addConstraint(Sketcher.Constraint("Coincident", 4, 3, -1, 1))
sketch12.addConstraint(Sketcher.Constraint("Equal", 1, 3))
sketch12.addConstraint(Sketcher.Constraint("Equal", 3, 5))
sketch12.addConstraint(Sketcher.Constraint("Equal", 5, 7))
sketch12.addConstraint(Sketcher.Constraint("Vertical", 3, 3, 5, 3))
sketch12.addConstraint(Sketcher.Constraint("Radius", 1, Q("1.5 mm")))
sketch12.addConstraint(Sketcher.Constraint("Radius", 4, Q("9.1 mm")))
sketch12.addConstraint(Sketcher.Constraint("DistanceY", 0, 1, 0, 2, Q("7 mm")))
sketch12.addConstraint(Sketcher.Constraint("DistanceX", -1, 1, 0, 2, Q("12 mm")))
pad5 = doc.addObject("PartDesign::Pad", "Pad004")
body2.addObject(pad5)
pad5.Profile = sketch12
pad5.Length = 4
pad5.Reversed = True
doc.recompute()

chamfer = doc.addObject("PartDesign::Chamfer", "Chamfer")
body2.addObject(chamfer)
chamfer.Base = (pad5, edges_at(pad5, [(0, 0, 7)]))
chamfer.Size = 1

# Sketch on XZ plane
sketch13 = doc.addObject("Sketcher::SketchObject", "Sketch012")
body2.addObject(sketch13)
sketch13.AttachmentSupport = (doc.getObject("XZ_Plane001"), [""])
sketch13.MapMode = "FlatFace"
sketch13.AttachmentOffset = App.Placement(App.Vector(0, 0, 4), App.Rotation())
sketch13.addGeometry(Part.ArcOfCircle(Part.Circle(App.Vector(-8.5, -8.5, 0), App.Vector(0, 0, 1), 1.3), math.radians(0), math.radians(90)), False)
sketch13.addGeometry(Part.ArcOfCircle(Part.Circle(App.Vector(-8.5, -8.5, 0), App.Vector(0, 0, 1), 1.4), math.radians(90), math.radians(360)), False)
sketch13.addConstraint(Sketcher.Constraint("Tangent", 0, 1, 1, 2))
sketch13.addConstraint(Sketcher.Constraint("Coincident", 1, 1, 0, 2))
sketch13.addConstraint(Sketcher.Constraint("Horizontal", 1, 3, 0, 1))
sketch13.addConstraint(Sketcher.Constraint("Vertical", 0, 3, 1, 1))
sketch13.addConstraint(Sketcher.Constraint("Radius", 0, Q("1.35 mm")))
sketch13.addConstraint(Sketcher.Constraint("DistanceX", 0, 3, -1, 1, Q("8.5 mm")))
sketch13.addConstraint(Sketcher.Constraint("DistanceY", 0, 3, -1, 1, Q("8.5 mm")))
pocket8 = doc.addObject("PartDesign::Pocket", "Pocket007")
body2.addObject(pocket8)
pocket8.Profile = sketch13
pocket8.Length = 10
doc.recompute()

polarpattern2 = doc.addObject("PartDesign::PolarPattern", "PolarPattern001")
body2.addObject(polarpattern2)
polarpattern2.Originals = [pocket8]
polarpattern2.Axis = (doc.getObject("Y_Axis001"), [""])
polarpattern2.Angle = 360
polarpattern2.Occurrences = 4
body2.Tip = polarpattern2

# Sketch on XZ plane
sketch14 = doc.addObject("Sketcher::SketchObject", "Sketch013")
body2.addObject(sketch14)
sketch14.AttachmentSupport = (doc.getObject("XZ_Plane001"), [""])
sketch14.MapMode = "FlatFace"
sketch14.AttachmentOffset = App.Placement(App.Vector(0, 0, 4), App.Rotation())
sketch14.addGeometry(Part.LineSegment(App.Vector(-12, 12, 0), App.Vector(-12, -12, 0)), False)
sketch14.addGeometry(Part.LineSegment(App.Vector(-12, -12, 0), App.Vector(12, -12, 0)), False)
sketch14.addGeometry(Part.LineSegment(App.Vector(12, -12, 0), App.Vector(12, 12, 0)), False)
sketch14.addGeometry(Part.LineSegment(App.Vector(12, 12, 0), App.Vector(-12, 12, 0)), False)
sketch14.addConstraint(Sketcher.Constraint("Coincident", 0, 2, 1, 1))
sketch14.addConstraint(Sketcher.Constraint("Coincident", 1, 2, 2, 1))
sketch14.addConstraint(Sketcher.Constraint("Coincident", 2, 2, 3, 1))
sketch14.addConstraint(Sketcher.Constraint("Coincident", 3, 2, 0, 1))
sketch14.addConstraint(Sketcher.Constraint("Vertical", 0))
sketch14.addConstraint(Sketcher.Constraint("Horizontal", 1))
sketch14.addConstraint(Sketcher.Constraint("Vertical", 2))
sketch14.addConstraint(Sketcher.Constraint("Horizontal", 3))
sketch14.addConstraint(Sketcher.Constraint("Symmetric", 0, 2, 2, 2, -1, 1))
sketch14.addConstraint(Sketcher.Constraint("Equal", 3, 0))
sketch14.addConstraint(Sketcher.Constraint("DistanceX", 1, 1, 1, 2, Q("23.3 mm")))
pocket9 = doc.addObject("PartDesign::Pocket", "Pocket008")
body2.addObject(pocket9)
pocket9.Profile = sketch14
pocket9.Length = 2
doc.recompute()

fillet4 = doc.addObject("PartDesign::Fillet", "Fillet003")
body2.addObject(fillet4)
fillet4.Base = (pocket9, edges_at(pocket9, [
    (-11.65, -3, -11.65),
    (-11.65, -3, 11.65),
    (11.65, -3, 11.65),
    (11.65, -3, -11.65),
]))
fillet4.Radius = 2.9

doc.recompute()
